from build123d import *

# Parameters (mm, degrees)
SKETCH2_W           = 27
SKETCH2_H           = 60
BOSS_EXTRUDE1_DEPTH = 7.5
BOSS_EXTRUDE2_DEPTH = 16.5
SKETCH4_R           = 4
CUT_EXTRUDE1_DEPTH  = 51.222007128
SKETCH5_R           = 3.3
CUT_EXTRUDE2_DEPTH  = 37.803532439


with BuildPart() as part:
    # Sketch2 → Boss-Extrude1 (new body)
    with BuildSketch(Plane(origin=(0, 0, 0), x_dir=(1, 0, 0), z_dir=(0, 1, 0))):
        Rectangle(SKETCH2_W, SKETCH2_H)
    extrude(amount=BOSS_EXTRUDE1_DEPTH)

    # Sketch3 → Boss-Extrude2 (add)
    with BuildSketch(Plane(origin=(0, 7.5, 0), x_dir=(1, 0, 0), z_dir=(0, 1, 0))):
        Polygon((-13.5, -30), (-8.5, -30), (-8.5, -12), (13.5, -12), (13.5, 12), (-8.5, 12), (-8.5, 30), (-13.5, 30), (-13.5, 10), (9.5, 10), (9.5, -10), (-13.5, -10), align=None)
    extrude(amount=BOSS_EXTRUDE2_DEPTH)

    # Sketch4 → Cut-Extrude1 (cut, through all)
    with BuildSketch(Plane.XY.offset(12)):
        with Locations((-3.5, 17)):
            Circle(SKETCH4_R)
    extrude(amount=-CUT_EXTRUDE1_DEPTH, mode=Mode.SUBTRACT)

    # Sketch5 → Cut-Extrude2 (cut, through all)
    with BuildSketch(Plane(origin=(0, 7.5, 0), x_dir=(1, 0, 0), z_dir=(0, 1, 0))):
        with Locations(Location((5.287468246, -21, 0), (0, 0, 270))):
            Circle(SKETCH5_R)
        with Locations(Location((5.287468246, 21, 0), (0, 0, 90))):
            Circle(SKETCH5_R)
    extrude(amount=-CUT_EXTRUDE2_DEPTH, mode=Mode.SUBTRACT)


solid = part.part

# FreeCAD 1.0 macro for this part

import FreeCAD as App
import Part
import Sketcher
from FreeCAD import Vector
Q = App.Units.Quantity


def add_polygon(sketch, points):
    """Adds a closed chain of lines whose ends are joined by coincident constraints."""
    first, n = sketch.GeometryCount, len(points)
    for a, b in zip(points, points[1:] + points[:1]):
        sketch.addGeometry(Part.LineSegment(App.Vector(*a, 0), App.Vector(*b, 0)), False)
    for i in range(n):
        sketch.addConstraint(Sketcher.Constraint("Coincident", first + i, 2, first + (i + 1) % n, 1))

doc = App.newDocument("Part")
body = doc.addObject("PartDesign::Body", "Body")

sketch1 = body.newObject("Sketcher::SketchObject", "Sketch")
sketch1.AttachmentSupport = (doc.getObject("XZ_Plane"), [""])
sketch1.MapMode = "FlatFace"
add_polygon(sketch1, [(-13.5, -30), (-13.5, 30), (13.5, 30), (13.5, -30)])
sketch1.addConstraint([
    Sketcher.Constraint("Vertical", 0),
    Sketcher.Constraint("Horizontal", 1),
    Sketcher.Constraint("Vertical", 2),
    Sketcher.Constraint("Horizontal", 3),
    Sketcher.Constraint("Symmetric", 0, 2, 2, 2, -1, 1),
    Sketcher.Constraint("DistanceX", 1, 1, 1, 2, Q("27 mm")),
    Sketcher.Constraint("DistanceY", 0, 1, 0, 2, Q("60 mm")),
])
pad1 = body.newObject("PartDesign::Pad", "Pad")
pad1.Profile = sketch1
pad1.Length = 7.5
pad1.Reversed = True

sketch2 = body.newObject("Sketcher::SketchObject", "Sketch001")
sketch2.AttachmentSupport = (doc.getObject("XZ_Plane"), [""])
sketch2.MapMode = "FlatFace"
sketch2.AttachmentOffset = App.Placement(Vector(0, 0, -7.5), App.Rotation())
add_polygon(sketch2, [(-13.5, 30), (-8.5, 30), (-8.5, 12), (13.5, 12), (13.5, -12), (-8.5, -12), (-8.5, -30), (-13.5, -30), (-13.5, -10), (9.5, -10), (9.5, 10), (-13.5, 10)])
sketch2.addConstraint([
    Sketcher.Constraint("Horizontal", 0),
    Sketcher.Constraint("Vertical", 1),
    Sketcher.Constraint("Horizontal", 2),
    Sketcher.Constraint("Vertical", 3),
    Sketcher.Constraint("Horizontal", 4),
    Sketcher.Constraint("Vertical", 5),
    Sketcher.Constraint("Horizontal", 6),
    Sketcher.Constraint("Vertical", 7),
    Sketcher.Constraint("Horizontal", 8),
    Sketcher.Constraint("Vertical", 9),
    Sketcher.Constraint("Horizontal", 10),
    Sketcher.Constraint("Vertical", 11),
    Sketcher.Constraint("Symmetric", 1, 2, 4, 2, -1),
    Sketcher.Constraint("Symmetric", 7, 2, 10, 2, -1),
    Sketcher.Constraint("Equal", 1, 5),
    Sketcher.Constraint("Equal", 7, 9),
    Sketcher.Constraint("DistanceX", 0, 1, 0, 2, Q("5 mm")),
    Sketcher.Constraint("DistanceX", 2, 1, 2, 2, Q("22 mm")),
    Sketcher.Constraint("DistanceX", 8, 1, 8, 2, Q("23 mm")),
    Sketcher.Constraint("DistanceY", 1, 2, 1, 1, Q("18 mm")),
    Sketcher.Constraint("DistanceY", 3, 2, 3, 1, Q("24 mm")),
    Sketcher.Constraint("DistanceX", 0, 2, -1, 1, Q("8.5 mm")),
])
pad2 = body.newObject("PartDesign::Pad", "Pad001")
pad2.Profile = sketch2
pad2.Length = 16.5
pad2.Reversed = True

sketch3 = body.newObject("Sketcher::SketchObject", "Sketch002")
sketch3.AttachmentSupport = (doc.getObject("XY_Plane"), [""])
sketch3.MapMode = "FlatFace"
sketch3.AttachmentOffset = App.Placement(Vector(0, 0, 12), App.Rotation())
sketch3.addGeometry(Part.Circle(Vector(-3.5, 17, 0), Vector(0, 0, 1), 4), False)
sketch3.addConstraint([
    Sketcher.Constraint("Diameter", 0, Q("8 mm")),
    Sketcher.Constraint("DistanceY", -1, 1, 0, 3, Q("17 mm")),
    Sketcher.Constraint("DistanceX", 0, 3, -1, 1, Q("3.5 mm")),
])
pocket1 = body.newObject("PartDesign::Pocket", "Pocket")
pocket1.Profile = sketch3
pocket1.Type = "ThroughAll"

sketch4 = body.newObject("Sketcher::SketchObject", "Sketch003")
sketch4.AttachmentSupport = (doc.getObject("XZ_Plane"), [""])
sketch4.MapMode = "FlatFace"
sketch4.AttachmentOffset = App.Placement(Vector(0, 0, -7.5), App.Rotation())
sketch4.addGeometry([
    Part.Circle(Vector(5.287468, 21, 0), Vector(0, 0, 1), 3.3),
    Part.Circle(Vector(5.287468, -21, 0), Vector(0, 0, 1), 3.3),
], False)
sketch4.addConstraint([
    Sketcher.Constraint("Equal", 0, 1),
    Sketcher.Constraint("Symmetric", 0, 3, 1, 3, -1),
    Sketcher.Constraint("Diameter", 0, Q("6.6 mm")),
    Sketcher.Constraint("DistanceY", -1, 1, 0, 3, Q("21 mm")),
    Sketcher.Constraint("DistanceX", -1, 1, 0, 3, Q("5.287468 mm")),
])
pocket2 = body.newObject("PartDesign::Pocket", "Pocket001")
pocket2.Profile = sketch4
pocket2.Type = "ThroughAll"
pocket2.Reversed = True

doc.recompute()
